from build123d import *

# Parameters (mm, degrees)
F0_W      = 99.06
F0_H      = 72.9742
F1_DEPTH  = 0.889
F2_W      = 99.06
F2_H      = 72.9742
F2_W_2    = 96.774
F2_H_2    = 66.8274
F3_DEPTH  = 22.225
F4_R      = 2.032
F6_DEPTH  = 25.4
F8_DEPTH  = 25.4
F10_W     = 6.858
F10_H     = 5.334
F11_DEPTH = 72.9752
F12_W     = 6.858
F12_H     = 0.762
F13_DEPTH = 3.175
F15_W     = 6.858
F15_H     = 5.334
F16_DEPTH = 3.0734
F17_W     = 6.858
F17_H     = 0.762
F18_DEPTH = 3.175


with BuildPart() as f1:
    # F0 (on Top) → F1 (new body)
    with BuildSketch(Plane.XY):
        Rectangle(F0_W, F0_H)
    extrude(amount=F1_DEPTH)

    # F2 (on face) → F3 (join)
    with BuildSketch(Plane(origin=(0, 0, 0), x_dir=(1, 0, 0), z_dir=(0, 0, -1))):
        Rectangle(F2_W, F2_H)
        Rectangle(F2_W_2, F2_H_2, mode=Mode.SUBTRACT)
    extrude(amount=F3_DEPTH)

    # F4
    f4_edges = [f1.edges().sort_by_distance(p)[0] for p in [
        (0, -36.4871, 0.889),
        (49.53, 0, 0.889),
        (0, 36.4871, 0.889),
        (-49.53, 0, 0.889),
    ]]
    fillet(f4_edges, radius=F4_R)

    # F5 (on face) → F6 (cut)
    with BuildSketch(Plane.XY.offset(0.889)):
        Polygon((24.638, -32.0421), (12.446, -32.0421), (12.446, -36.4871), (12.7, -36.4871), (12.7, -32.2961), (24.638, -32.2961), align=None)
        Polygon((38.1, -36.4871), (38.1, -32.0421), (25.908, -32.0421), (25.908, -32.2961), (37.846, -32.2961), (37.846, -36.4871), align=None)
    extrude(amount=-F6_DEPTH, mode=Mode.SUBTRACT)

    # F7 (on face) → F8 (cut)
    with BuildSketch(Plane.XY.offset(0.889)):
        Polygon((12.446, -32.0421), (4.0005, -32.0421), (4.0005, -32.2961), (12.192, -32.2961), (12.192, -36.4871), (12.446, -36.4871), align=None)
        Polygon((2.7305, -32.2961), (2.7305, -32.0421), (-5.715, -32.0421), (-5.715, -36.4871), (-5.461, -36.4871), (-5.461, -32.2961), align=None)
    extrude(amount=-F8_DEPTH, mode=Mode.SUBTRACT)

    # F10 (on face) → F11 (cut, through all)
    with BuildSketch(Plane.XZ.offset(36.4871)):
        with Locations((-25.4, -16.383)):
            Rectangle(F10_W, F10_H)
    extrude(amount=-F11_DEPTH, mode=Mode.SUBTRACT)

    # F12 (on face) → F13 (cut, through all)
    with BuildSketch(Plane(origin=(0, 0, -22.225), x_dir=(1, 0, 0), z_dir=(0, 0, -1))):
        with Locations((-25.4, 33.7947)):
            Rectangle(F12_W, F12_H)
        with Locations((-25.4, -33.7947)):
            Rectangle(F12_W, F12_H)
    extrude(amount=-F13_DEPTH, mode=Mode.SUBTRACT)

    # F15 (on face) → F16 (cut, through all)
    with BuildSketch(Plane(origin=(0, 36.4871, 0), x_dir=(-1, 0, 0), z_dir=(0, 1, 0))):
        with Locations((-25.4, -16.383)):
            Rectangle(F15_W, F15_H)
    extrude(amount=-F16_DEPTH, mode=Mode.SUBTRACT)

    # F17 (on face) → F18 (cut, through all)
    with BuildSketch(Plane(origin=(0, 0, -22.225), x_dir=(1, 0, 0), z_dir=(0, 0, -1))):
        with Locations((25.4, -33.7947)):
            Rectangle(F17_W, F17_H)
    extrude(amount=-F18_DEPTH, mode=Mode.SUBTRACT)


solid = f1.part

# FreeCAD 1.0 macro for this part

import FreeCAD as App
import Part
import Sketcher
from FreeCAD import Vector
Q = App.Units.Quantity


def edges_at(feature, points):
    """Names of the edges that pass closest to the given points."""
    edges = feature.Shape.Edges
    near = lambda p: min(range(len(edges)), key=lambda i: edges[i].distToShape(Part.Vertex(*p))[0])
    return sorted({f"Edge{near(p) + 1}" for p in points})

doc = App.newDocument("Part")
body = doc.addObject("PartDesign::Body", "Body")

sketch1 = body.newObject("Sketcher::SketchObject", "Sketch")
sketch1.AttachmentSupport = (doc.getObject("XY_Plane"), [""])
sketch1.MapMode = "FlatFace"
sketch1.addGeometry([
    Part.LineSegment(Vector(-50, 36, 0), Vector(-50, -36, 0)),
    Part.LineSegment(Vector(-50, -36, 0), Vector(50, -36, 0)),
    Part.LineSegment(Vector(50, -36, 0), Vector(50, 36, 0)),
    Part.LineSegment(Vector(50, 36, 0), Vector(-50, 36, 0)),
], False)
sketch1.addConstraint([
    Sketcher.Constraint("Coincident", 0, 2, 1, 1),
    Sketcher.Constraint("Coincident", 1, 2, 2, 1),
    Sketcher.Constraint("Coincident", 2, 2, 3, 1),
    Sketcher.Constraint("Coincident", 3, 2, 0, 1),
    Sketcher.Constraint("Vertical", 0),
    Sketcher.Constraint("Horizontal", 1),
    Sketcher.Constraint("Vertical", 2),
    Sketcher.Constraint("Horizontal", 3),
    Sketcher.Constraint("Symmetric", 0, 2, 2, 2, -1, 1),
    Sketcher.Constraint("DistanceX", 1, 1, 1, 2, Q("3.9 in")),
    Sketcher.Constraint("DistanceY", 0, 2, 0, 1, Q("2.873 in")),
])
pad1 = body.newObject("PartDesign::Pad", "Pad")
pad1.Profile = sketch1
pad1.Length = Q("0.035 in")

sketch2 = body.newObject("Sketcher::SketchObject", "Sketch001")
sketch2.AttachmentSupport = (doc.getObject("XY_Plane"), [""])
sketch2.MapMode = "FlatFace"
sketch2.addGeometry([
    Part.LineSegment(Vector(-50, -36, 0), Vector(-50, 36, 0)),
    Part.LineSegment(Vector(-50, 36, 0), Vector(50, 36, 0)),
    Part.LineSegment(Vector(50, 36, 0), Vector(50, -36, 0)),
    Part.LineSegment(Vector(50, -36, 0), Vector(-50, -36, 0)),
    Part.LineSegment(Vector(48, 33, 0), Vector(-48, 33, 0)),
    Part.LineSegment(Vector(-48, 33, 0), Vector(-48, -33, 0)),
    Part.LineSegment(Vector(-48, -33, 0), Vector(48, -33, 0)),
    Part.LineSegment(Vector(48, -33, 0), Vector(48, 33, 0)),
], False)
sketch2.addConstraint([
    Sketcher.Constraint("Coincident", 0, 2, 1, 1),
    Sketcher.Constraint("Coincident", 1, 2, 2, 1),
    Sketcher.Constraint("Coincident", 2, 2, 3, 1),
    Sketcher.Constraint("Coincident", 3, 2, 0, 1),
    Sketcher.Constraint("Coincident", 4, 2, 5, 1),
    Sketcher.Constraint("Coincident", 5, 2, 6, 1),
    Sketcher.Constraint("Coincident", 6, 2, 7, 1),
    Sketcher.Constraint("Coincident", 7, 2, 4, 1),
    Sketcher.Constraint("Vertical", 0),
    Sketcher.Constraint("Horizontal", 1),
    Sketcher.Constraint("Vertical", 2),
    Sketcher.Constraint("Horizontal", 3),
    Sketcher.Constraint("Horizontal", 4),
    Sketcher.Constraint("Vertical", 5),
    Sketcher.Constraint("Horizontal", 6),
    Sketcher.Constraint("Vertical", 7),
    Sketcher.Constraint("Symmetric", 0, 2, 2, 2, -1, 1),
    Sketcher.Constraint("Symmetric", 4, 2, 6, 2, -1, 1),
    Sketcher.Constraint("DistanceX", 1, 1, 1, 2, Q("3.9 in")),
    Sketcher.Constraint("DistanceX", 4, 2, 4, 1, Q("3.81 in")),
    Sketcher.Constraint("DistanceY", 0, 1, 0, 2, Q("2.873 in")),
    Sketcher.Constraint("DistanceY", 5, 2, 5, 1, Q("2.631 in")),
])
pad2 = body.newObject("PartDesign::Pad", "Pad001")
pad2.Profile = sketch2
pad2.Length = Q("0.875 in")
pad2.Reversed = True
doc.recompute()

fillet = body.newObject("PartDesign::Fillet", "Fillet")
fillet.Base = (pad2, edges_at(pad2, [
    (0, -36.487, 0.889),
    (49.53, 0, 0.889),
    (0, 36.487, 0.889),
    (-49.53, 0, 0.889),
]))
fillet.Radius = Q("0.08 in")

sketch3 = body.newObject("Sketcher::SketchObject", "Sketch002")
sketch3.AttachmentSupport = (doc.getObject("XY_Plane"), [""])
sketch3.MapMode = "FlatFace"
sketch3.AttachmentOffset = App.Placement(Vector(0, 0, 0.035 * 25.4), App.Rotation())
sketch3.addGeometry([
    Part.LineSegment(Vector(24.64, -32.04, 0), Vector(12.45, -32.04, 0)),
    Part.LineSegment(Vector(12.45, -32.04, 0), Vector(12.45, -36.49, 0)),
    Part.LineSegment(Vector(12.45, -36.49, 0), Vector(12.7, -36.49, 0)),
    Part.LineSegment(Vector(12.7, -36.49, 0), Vector(12.7, -32.3, 0)),
    Part.LineSegment(Vector(12.7, -32.3, 0), Vector(24.64, -32.3, 0)),
    Part.LineSegment(Vector(24.64, -32.3, 0), Vector(24.64, -32.04, 0)),
    Part.LineSegment(Vector(38.1, -36.49, 0), Vector(38.1, -32.04, 0)),
    Part.LineSegment(Vector(38.1, -32.04, 0), Vector(25.91, -32.04, 0)),
    Part.LineSegment(Vector(25.91, -32.04, 0), Vector(25.91, -32.3, 0)),
    Part.LineSegment(Vector(25.91, -32.3, 0), Vector(37.85, -32.3, 0)),
    Part.LineSegment(Vector(37.85, -32.3, 0), Vector(37.85, -36.49, 0)),
    Part.LineSegment(Vector(37.85, -36.49, 0), Vector(38.1, -36.49, 0)),
], False)
sketch3.addConstraint([
    Sketcher.Constraint("Coincident", 0, 2, 1, 1),
    Sketcher.Constraint("Coincident", 1, 2, 2, 1),
    Sketcher.Constraint("Coincident", 2, 2, 3, 1),
    Sketcher.Constraint("Coincident", 3, 2, 4, 1),
    Sketcher.Constraint("Coincident", 4, 2, 5, 1),
    Sketcher.Constraint("Coincident", 5, 2, 0, 1),
    Sketcher.Constraint("Coincident", 6, 2, 7, 1),
    Sketcher.Constraint("Coincident", 7, 2, 8, 1),
    Sketcher.Constraint("Coincident", 8, 2, 9, 1),
    Sketcher.Constraint("Coincident", 9, 2, 10, 1),
    Sketcher.Constraint("Coincident", 10, 2, 11, 1),
    Sketcher.Constraint("Coincident", 11, 2, 6, 1),
    Sketcher.Constraint("Horizontal", 0),
    Sketcher.Constraint("Vertical", 1),
    Sketcher.Constraint("Horizontal", 2),
    Sketcher.Constraint("Vertical", 3),
    Sketcher.Constraint("Horizontal", 4),
    Sketcher.Constraint("Vertical", 5),
    Sketcher.Constraint("Vertical", 6),
    Sketcher.Constraint("Horizontal", 7),
    Sketcher.Constraint("Vertical", 8),
    Sketcher.Constraint("Horizontal", 9),
    Sketcher.Constraint("Vertical", 10),
    Sketcher.Constraint("Horizontal", 11),
    Sketcher.Constraint("Horizontal", 5, 2, 6, 2),
    Sketcher.Constraint("Horizontal", 4, 2, 8, 2),
    Sketcher.Constraint("Horizontal", 2, 2, 10, 2),
    Sketcher.Constraint("Equal", 0, 7),
    Sketcher.Constraint("Equal", 4, 9),
    Sketcher.Constraint("Equal", 11, 5),
    Sketcher.Constraint("DistanceX", 3, 2, 6, 2, Q("1 in")),
    Sketcher.Constraint("DistanceX", 0, 2, 0, 1, Q("0.48 in")),
    Sketcher.Constraint("DistanceX", 2, 1, 2, 2, Q("0.01 in")),
    Sketcher.Constraint("DistanceX", -1, 1, 2, 2, Q("0.5 in")),
    Sketcher.Constraint("DistanceY", 1, 2, 1, 1, Q("0.175 in")),
    Sketcher.Constraint("DistanceY", 0, 2, -1, 1, Q("1.2615 in")),
])
pocket1 = body.newObject("PartDesign::Pocket", "Pocket")
pocket1.Profile = sketch3
pocket1.Length = Q("1 in")

sketch4 = body.newObject("Sketcher::SketchObject", "Sketch003")
sketch4.AttachmentSupport = (doc.getObject("XY_Plane"), [""])
sketch4.MapMode = "FlatFace"
sketch4.AttachmentOffset = App.Placement(Vector(0, 0, 0.035 * 25.4), App.Rotation())
sketch4.addGeometry([
    Part.LineSegment(Vector(12.45, -32.04, 0), Vector(4, -32.04, 0)),
    Part.LineSegment(Vector(4, -32.04, 0), Vector(4, -32.3, 0)),
    Part.LineSegment(Vector(4, -32.3, 0), Vector(12.19, -32.3, 0)),
    Part.LineSegment(Vector(12.19, -32.3, 0), Vector(12.19, -36.49, 0)),
    Part.LineSegment(Vector(12.19, -36.49, 0), Vector(12.45, -36.49, 0)),
    Part.LineSegment(Vector(12.45, -36.49, 0), Vector(12.45, -32.04, 0)),
    Part.LineSegment(Vector(2.73, -32.3, 0), Vector(2.73, -32.04, 0)),
    Part.LineSegment(Vector(2.73, -32.04, 0), Vector(-5.71, -32.04, 0)),
    Part.LineSegment(Vector(-5.71, -32.04, 0), Vector(-5.71, -36.49, 0)),
    Part.LineSegment(Vector(-5.71, -36.49, 0), Vector(-5.46, -36.49, 0)),
    Part.LineSegment(Vector(-5.46, -36.49, 0), Vector(-5.46, -32.3, 0)),
    Part.LineSegment(Vector(-5.46, -32.3, 0), Vector(2.73, -32.3, 0)),
], False)
sketch4.addConstraint([
    Sketcher.Constraint("Coincident", 0, 2, 1, 1),
    Sketcher.Constraint("Coincident", 1, 2, 2, 1),
    Sketcher.Constraint("Coincident", 2, 2, 3, 1),
    Sketcher.Constraint("Coincident", 3, 2, 4, 1),
    Sketcher.Constraint("Coincident", 4, 2, 5, 1),
    Sketcher.Constraint("Coincident", 5, 2, 0, 1),
    Sketcher.Constraint("Coincident", 6, 2, 7, 1),
    Sketcher.Constraint("Coincident", 7, 2, 8, 1),
    Sketcher.Constraint("Coincident", 8, 2, 9, 1),
    Sketcher.Constraint("Coincident", 9, 2, 10, 1),
    Sketcher.Constraint("Coincident", 10, 2, 11, 1),
    Sketcher.Constraint("Coincident", 11, 2, 6, 1),
    Sketcher.Constraint("Horizontal", 0),
    Sketcher.Constraint("Vertical", 1),
    Sketcher.Constraint("Horizontal", 2),
    Sketcher.Constraint("Vertical", 3),
    Sketcher.Constraint("Horizontal", 4),
    Sketcher.Constraint("Vertical", 5),
    Sketcher.Constraint("Vertical", 6),
    Sketcher.Constraint("Horizontal", 7),
    Sketcher.Constraint("Vertical", 8),
    Sketcher.Constraint("Horizontal", 9),
    Sketcher.Constraint("Vertical", 10),
    Sketcher.Constraint("Horizontal", 11),
    Sketcher.Constraint("Horizontal", 5, 2, 6, 2),
    Sketcher.Constraint("Horizontal", 4, 2, 8, 2),
    Sketcher.Constraint("Horizontal", 2, 2, 10, 2),
    Sketcher.Constraint("Equal", 0, 7),
    Sketcher.Constraint("Equal", 4, 9),
    Sketcher.Constraint("Equal", 9, 1),
    Sketcher.Constraint("DistanceX", 4, 1, 4, 2, Q("0.01 in")),
    Sketcher.Constraint("DistanceY", 3, 2, 3, 1, Q("0.165 in")),
    Sketcher.Constraint("DistanceX", -1, 1, 2, 2, Q("0.48 in")),
    Sketcher.Constraint("DistanceX", 6, 2, 0, 2, Q("0.05 in")),
    Sketcher.Constraint("DistanceX", 0, 2, 0, 1, Q("0.3325 in")),
    Sketcher.Constraint("DistanceY", 0, 2, -1, 1, Q("1.2615 in")),
])
pocket2 = body.newObject("PartDesign::Pocket", "Pocket001")
pocket2.Profile = sketch4
pocket2.Length = Q("1 in")

sketch5 = body.newObject("Sketcher::SketchObject", "Sketch004")
sketch5.AttachmentSupport = (doc.getObject("XZ_Plane"), [""])
sketch5.MapMode = "FlatFace"
sketch5.AttachmentOffset = App.Placement(Vector(0, 0, 1.4365 * 25.4), App.Rotation())
sketch5.addGeometry([
    Part.LineSegment(Vector(-29, -14, 0), Vector(-29, -19, 0)),
    Part.LineSegment(Vector(-29, -19, 0), Vector(-22, -19, 0)),
    Part.LineSegment(Vector(-22, -19, 0), Vector(-22, -14, 0)),
    Part.LineSegment(Vector(-22, -14, 0), Vector(-29, -14, 0)),
], False)
sketch5.addConstraint([
    Sketcher.Constraint("Coincident", 0, 2, 1, 1),
    Sketcher.Constraint("Coincident", 1, 2, 2, 1),
    Sketcher.Constraint("Coincident", 2, 2, 3, 1),
    Sketcher.Constraint("Coincident", 3, 2, 0, 1),
    Sketcher.Constraint("Vertical", 0),
    Sketcher.Constraint("Horizontal", 1),
    Sketcher.Constraint("Vertical", 2),
    Sketcher.Constraint("Horizontal", 3),
    Sketcher.Constraint("DistanceX", 1, 1, 1, 2, Q("0.27 in")),
    Sketcher.Constraint("DistanceY", 0, 2, 0, 1, Q("0.21 in")),
    Sketcher.Constraint("DistanceY", 0, 2, -1, 1, Q("0.75 in")),
    Sketcher.Constraint("DistanceX", 0, 2, -1, 1, Q("1.135 in")),
])
pocket3 = body.newObject("PartDesign::Pocket", "Pocket002")
pocket3.Profile = sketch5
pocket3.Type = "ThroughAll"

sketch6 = body.newObject("Sketcher::SketchObject", "Sketch005")
sketch6.AttachmentSupport = (doc.getObject("XY_Plane"), [""])
sketch6.MapMode = "FlatFace"
sketch6.AttachmentOffset = App.Placement(Vector(0, 0, -0.875 * 25.4), App.Rotation())
sketch6.addGeometry([
    Part.LineSegment(Vector(-28.8, -34.2, 0), Vector(-28.8, -33.4, 0)),
    Part.LineSegment(Vector(-28.8, -33.4, 0), Vector(-22, -33.4, 0)),
    Part.LineSegment(Vector(-22, -33.4, 0), Vector(-22, -34.2, 0)),
    Part.LineSegment(Vector(-22, -34.2, 0), Vector(-28.8, -34.2, 0)),
    Part.LineSegment(Vector(-28.8, 33.4, 0), Vector(-28.8, 34.2, 0)),
    Part.LineSegment(Vector(-28.8, 34.2, 0), Vector(-22, 34.2, 0)),
    Part.LineSegment(Vector(-22, 34.2, 0), Vector(-22, 33.4, 0)),
    Part.LineSegment(Vector(-22, 33.4, 0), Vector(-28.8, 33.4, 0)),
], False)
sketch6.addConstraint([
    Sketcher.Constraint("Coincident", 0, 2, 1, 1),
    Sketcher.Constraint("Coincident", 1, 2, 2, 1),
    Sketcher.Constraint("Coincident", 2, 2, 3, 1),
    Sketcher.Constraint("Coincident", 3, 2, 0, 1),
    Sketcher.Constraint("Coincident", 4, 2, 5, 1),
    Sketcher.Constraint("Coincident", 5, 2, 6, 1),
    Sketcher.Constraint("Coincident", 6, 2, 7, 1),
    Sketcher.Constraint("Coincident", 7, 2, 4, 1),
    Sketcher.Constraint("Vertical", 0),
    Sketcher.Constraint("Horizontal", 1),
    Sketcher.Constraint("Vertical", 2),
    Sketcher.Constraint("Horizontal", 3),
    Sketcher.Constraint("Vertical", 4),
    Sketcher.Constraint("Horizontal", 5),
    Sketcher.Constraint("Vertical", 6),
    Sketcher.Constraint("Horizontal", 7),
    Sketcher.Constraint("Symmetric", 3, 2, 4, 2, -1),
    Sketcher.Constraint("Symmetric", 1, 2, 6, 2, -1),
    Sketcher.Constraint("DistanceX", 1, 1, 1, 2, Q("0.27 in")),
    Sketcher.Constraint("DistanceY", 0, 1, 0, 2, Q("0.03 in")),
    Sketcher.Constraint("DistanceX", 0, 2, -1, 1, Q("1.135 in")),
    Sketcher.Constraint("DistanceY", 0, 2, 4, 2, Q("2.661 in")),
])
pocket4 = body.newObject("PartDesign::Pocket", "Pocket003")
pocket4.Profile = sketch6
pocket4.Length = Q("0.125 in")
pocket4.Reversed = True

sketch7 = body.newObject("Sketcher::SketchObject", "Sketch006")
sketch7.AttachmentSupport = (doc.getObject("XZ_Plane"), [""])
sketch7.MapMode = "FlatFace"
sketch7.AttachmentOffset = App.Placement(Vector(0, 0, -1.4365 * 25.4), App.Rotation())
sketch7.addGeometry([
    Part.LineSegment(Vector(29, -14, 0), Vector(29, -19, 0)),
    Part.LineSegment(Vector(29, -19, 0), Vector(22, -19, 0)),
    Part.LineSegment(Vector(22, -19, 0), Vector(22, -14, 0)),
    Part.LineSegment(Vector(22, -14, 0), Vector(29, -14, 0)),
], False)
sketch7.addConstraint([
    Sketcher.Constraint("Coincident", 0, 2, 1, 1),
    Sketcher.Constraint("Coincident", 1, 2, 2, 1),
    Sketcher.Constraint("Coincident", 2, 2, 3, 1),
    Sketcher.Constraint("Coincident", 3, 2, 0, 1),
    Sketcher.Constraint("Vertical", 0),
    Sketcher.Constraint("Horizontal", 1),
    Sketcher.Constraint("Vertical", 2),
    Sketcher.Constraint("Horizontal", 3),
    Sketcher.Constraint("DistanceX", 1, 2, 1, 1, Q("0.27 in")),
    Sketcher.Constraint("DistanceY", 0, 2, 0, 1, Q("0.21 in")),
    Sketcher.Constraint("DistanceY", 0, 2, -1, 1, Q("0.75 in")),
    Sketcher.Constraint("DistanceX", -1, 1, 0, 2, Q("1.135 in")),
])
pocket5 = body.newObject("PartDesign::Pocket", "Pocket004")
pocket5.Profile = sketch7
pocket5.Length = Q("0.121 in")
pocket5.Reversed = True

sketch8 = body.newObject("Sketcher::SketchObject", "Sketch007")
sketch8.AttachmentSupport = (doc.getObject("XY_Plane"), [""])
sketch8.MapMode = "FlatFace"
sketch8.AttachmentOffset = App.Placement(Vector(0, 0, -0.875 * 25.4), App.Rotation())
sketch8.addGeometry([
    Part.LineSegment(Vector(22, 33.4, 0), Vector(22, 34.2, 0)),
    Part.LineSegment(Vector(22, 34.2, 0), Vector(28.8, 34.2, 0)),
    Part.LineSegment(Vector(28.8, 34.2, 0), Vector(28.8, 33.4, 0)),
    Part.LineSegment(Vector(28.8, 33.4, 0), Vector(22, 33.4, 0)),
], False)
sketch8.addConstraint([
    Sketcher.Constraint("Coincident", 0, 2, 1, 1),
    Sketcher.Constraint("Coincident", 1, 2, 2, 1),
    Sketcher.Constraint("Coincident", 2, 2, 3, 1),
    Sketcher.Constraint("Coincident", 3, 2, 0, 1),
    Sketcher.Constraint("Vertical", 0),
    Sketcher.Constraint("Horizontal", 1),
    Sketcher.Constraint("Vertical", 2),
    Sketcher.Constraint("Horizontal", 3),
    Sketcher.Constraint("DistanceX", 1, 1, 1, 2, Q("0.27 in")),
    Sketcher.Constraint("DistanceY", 0, 1, 0, 2, Q("0.03 in")),
    Sketcher.Constraint("DistanceX", -1, 1, 0, 2, Q("0.865 in")),
    Sketcher.Constraint("DistanceY", -1, 1, 0, 2, Q("1.3455 in")),
])
pocket6 = body.newObject("PartDesign::Pocket", "Pocket005")
pocket6.Profile = sketch8
pocket6.Length = Q("0.125 in")
pocket6.Reversed = True

doc.recompute()
